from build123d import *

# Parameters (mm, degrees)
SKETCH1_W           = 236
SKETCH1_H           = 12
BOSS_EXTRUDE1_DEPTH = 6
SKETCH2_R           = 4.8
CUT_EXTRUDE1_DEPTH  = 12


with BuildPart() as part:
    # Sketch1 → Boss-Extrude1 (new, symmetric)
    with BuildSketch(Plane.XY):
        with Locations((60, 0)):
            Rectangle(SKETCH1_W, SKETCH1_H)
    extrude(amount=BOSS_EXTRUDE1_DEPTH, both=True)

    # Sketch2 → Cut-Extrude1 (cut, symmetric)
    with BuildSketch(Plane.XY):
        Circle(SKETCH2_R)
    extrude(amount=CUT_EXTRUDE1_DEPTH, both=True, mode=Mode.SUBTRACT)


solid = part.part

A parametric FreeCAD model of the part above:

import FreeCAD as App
import Part
import Sketcher
Q = App.Units.Quantity

doc = App.newDocument("Part")
body = doc.addObject("PartDesign::Body", "Body")

# Sketch on XY plane
sketch1 = body.newObject("Sketcher::SketchObject", "Sketch")
sketch1.AttachmentSupport = (doc.getObject("XY_Plane"), [""])
sketch1.MapMode = "FlatFace"
sketch1.addGeometry(Part.LineSegment(App.Vector(-58, 6, 0), App.Vector(-58, -6, 0)), False)
sketch1.addGeometry(Part.LineSegment(App.Vector(-58, -6, 0), App.Vector(178, -6, 0)), False)
sketch1.addGeometry(Part.LineSegment(App.Vector(178, -6, 0), App.Vector(178, 6, 0)), False)
sketch1.addGeometry(Part.LineSegment(App.Vector(178, 6, 0), App.Vector(-58, 6, 0)), False)
sketch1.addConstraint(Sketcher.Constraint("Coincident", 0, 2, 1, 1))
sketch1.addConstraint(Sketcher.Constraint("Coincident", 1, 2, 2, 1))
sketch1.addConstraint(Sketcher.Constraint("Coincident", 2, 2, 3, 1))
sketch1.addConstraint(Sketcher.Constraint("Coincident", 3, 2, 0, 1))
sketch1.addConstraint(Sketcher.Constraint("Vertical", 0))
sketch1.addConstraint(Sketcher.Constraint("Horizontal", 1))
sketch1.addConstraint(Sketcher.Constraint("Vertical", 2))
sketch1.addConstraint(Sketcher.Constraint("Horizontal", 3))
sketch1.addConstraint(Sketcher.Constraint("DistanceX", 1, 1, 1, 2, Q("236 mm")))
sketch1.addConstraint(Sketcher.Constraint("DistanceY", 0, 2, 0, 1, Q("12 mm")))
sketch1.addConstraint(Sketcher.Constraint("DistanceX", 0, 2, -1, 1, Q("58 mm")))
sketch1.addConstraint(Sketcher.Constraint("DistanceY", 0, 2, -1, 1, Q("6 mm")))
pad1 = body.newObject("PartDesign::Pad", "Pad")
pad1.Profile = sketch1
pad1.Length = 12
pad1.Midplane = True

# Sketch on XY plane
sketch2 = body.newObject("Sketcher::SketchObject", "Sketch001")
sketch2.AttachmentSupport = (doc.getObject("XY_Plane"), [""])
sketch2.MapMode = "FlatFace"
sketch2.addGeometry(Part.Circle(App.Vector(0, 0, 0), App.Vector(0, 0, 1), 4.8), False)
sketch2.addConstraint(Sketcher.Constraint("Coincident", 0, 3, -1, 1))
sketch2.addConstraint(Sketcher.Constraint("Diameter", 0, Q("9.6 mm")))
pocket1 = body.newObject("PartDesign::Pocket", "Pocket")
pocket1.Profile = sketch2
pocket1.Length = 24
pocket1.Midplane = True

doc.recompute()
